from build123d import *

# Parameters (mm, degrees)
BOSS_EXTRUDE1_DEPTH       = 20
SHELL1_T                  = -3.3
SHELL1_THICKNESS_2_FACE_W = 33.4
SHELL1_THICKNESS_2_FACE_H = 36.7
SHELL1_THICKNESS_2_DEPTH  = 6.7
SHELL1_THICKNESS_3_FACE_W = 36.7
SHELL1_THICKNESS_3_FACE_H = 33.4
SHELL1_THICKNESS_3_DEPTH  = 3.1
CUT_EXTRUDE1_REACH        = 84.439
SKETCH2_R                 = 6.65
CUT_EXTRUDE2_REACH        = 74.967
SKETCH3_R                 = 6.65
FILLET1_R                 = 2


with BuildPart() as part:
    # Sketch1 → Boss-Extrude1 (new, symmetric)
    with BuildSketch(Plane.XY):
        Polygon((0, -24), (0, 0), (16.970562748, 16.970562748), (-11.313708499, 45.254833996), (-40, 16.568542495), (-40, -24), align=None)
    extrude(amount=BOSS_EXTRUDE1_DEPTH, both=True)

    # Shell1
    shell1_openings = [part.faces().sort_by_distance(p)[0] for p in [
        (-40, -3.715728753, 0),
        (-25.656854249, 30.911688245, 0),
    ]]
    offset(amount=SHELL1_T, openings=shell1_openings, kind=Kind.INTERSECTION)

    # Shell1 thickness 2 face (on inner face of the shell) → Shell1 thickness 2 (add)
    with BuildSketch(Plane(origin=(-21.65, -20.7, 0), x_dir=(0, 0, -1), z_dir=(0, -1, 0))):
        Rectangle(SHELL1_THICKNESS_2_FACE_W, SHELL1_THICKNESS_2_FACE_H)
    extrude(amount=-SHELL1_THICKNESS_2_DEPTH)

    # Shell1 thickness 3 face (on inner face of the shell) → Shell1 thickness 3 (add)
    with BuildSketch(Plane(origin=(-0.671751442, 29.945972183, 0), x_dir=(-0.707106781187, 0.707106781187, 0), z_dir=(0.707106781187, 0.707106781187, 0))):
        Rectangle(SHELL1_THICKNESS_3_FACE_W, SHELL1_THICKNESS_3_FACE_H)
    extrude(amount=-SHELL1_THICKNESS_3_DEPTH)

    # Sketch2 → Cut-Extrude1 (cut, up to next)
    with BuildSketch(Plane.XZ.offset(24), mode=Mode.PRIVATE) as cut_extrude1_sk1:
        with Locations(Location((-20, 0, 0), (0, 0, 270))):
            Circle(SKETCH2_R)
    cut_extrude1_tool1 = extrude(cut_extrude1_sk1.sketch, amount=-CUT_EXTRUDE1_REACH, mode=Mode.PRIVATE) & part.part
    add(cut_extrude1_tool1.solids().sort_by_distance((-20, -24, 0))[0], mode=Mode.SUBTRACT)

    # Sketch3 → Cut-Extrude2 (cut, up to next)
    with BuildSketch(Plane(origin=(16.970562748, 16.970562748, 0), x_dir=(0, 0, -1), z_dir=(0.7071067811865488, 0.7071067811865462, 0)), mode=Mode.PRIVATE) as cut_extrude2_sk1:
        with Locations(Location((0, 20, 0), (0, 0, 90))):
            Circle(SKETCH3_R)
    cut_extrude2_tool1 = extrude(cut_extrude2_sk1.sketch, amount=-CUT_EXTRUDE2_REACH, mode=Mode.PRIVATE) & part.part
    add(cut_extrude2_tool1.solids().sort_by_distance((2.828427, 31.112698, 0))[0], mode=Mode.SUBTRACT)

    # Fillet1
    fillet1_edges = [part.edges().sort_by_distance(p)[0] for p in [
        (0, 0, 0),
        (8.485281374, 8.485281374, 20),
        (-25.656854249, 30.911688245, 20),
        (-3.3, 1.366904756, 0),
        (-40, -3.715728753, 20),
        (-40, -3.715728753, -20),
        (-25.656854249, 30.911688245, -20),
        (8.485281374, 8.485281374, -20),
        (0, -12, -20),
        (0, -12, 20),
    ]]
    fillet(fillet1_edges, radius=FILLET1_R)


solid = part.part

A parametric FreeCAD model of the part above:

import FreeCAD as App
import Part
import Sketcher

V = App.Vector
Q = App.Units.Quantity


def edges_at(feature, points):
    """Names of the edges that pass closest to the given points."""
    edges = feature.Shape.Edges
    near = lambda p: min(range(len(edges)), key=lambda i: edges[i].distToShape(Part.Vertex(*p))[0])
    return sorted({f"Edge{near(p) + 1}" for p in points})


def faces_at(feature, points):
    """Names of the faces that lie closest to the given points."""
    faces = feature.Shape.Faces
    near = lambda p: min(range(len(faces)), key=lambda i: faces[i].distToShape(Part.Vertex(*p))[0])
    return sorted({f"Face{near(p) + 1}" for p in points})

doc = App.newDocument("Part")
body = doc.addObject("PartDesign::Body", "Body")

sketch1 = body.newObject("Sketcher::SketchObject", "Sketch")
sketch1.AttachmentSupport = (doc.getObject("XY_Plane"), [""])
sketch1.MapMode = "FlatFace"
sketch1.addGeometry(Part.LineSegment(V(0, -24, 0), V(0, 0, 0)), False)
sketch1.addGeometry(Part.LineSegment(V(0, 0, 0), V(17, 17, 0)), False)
sketch1.addGeometry(Part.LineSegment(V(17, 17, 0), V(-11, 45, 0)), False)
sketch1.addGeometry(Part.LineSegment(V(-11, 45, 0), V(-40, 17, 0)), False)
sketch1.addGeometry(Part.LineSegment(V(-40, 17, 0), V(-40, -24, 0)), False)
sketch1.addGeometry(Part.LineSegment(V(-40, -24, 0), V(0, -24, 0)), False)
sketch1.addConstraint(Sketcher.Constraint("Coincident", 0, 2, 1, 1))
sketch1.addConstraint(Sketcher.Constraint("Coincident", 1, 2, 2, 1))
sketch1.addConstraint(Sketcher.Constraint("Coincident", 2, 2, 3, 1))
sketch1.addConstraint(Sketcher.Constraint("Coincident", 3, 2, 4, 1))
sketch1.addConstraint(Sketcher.Constraint("Coincident", 4, 2, 5, 1))
sketch1.addConstraint(Sketcher.Constraint("Coincident", 5, 2, 0, 1))
sketch1.addConstraint(Sketcher.Constraint("Vertical", 0))
sketch1.addConstraint(Sketcher.Constraint("Vertical", 4))
sketch1.addConstraint(Sketcher.Constraint("Horizontal", 5))
sketch1.addConstraint(Sketcher.Constraint("Coincident", 0, 2, -1, 1))
sketch1.addConstraint(Sketcher.Constraint("Perpendicular", 1, 2))
sketch1.addConstraint(Sketcher.Constraint("Perpendicular", 2, 3))
sketch1.addConstraint(Sketcher.Constraint("DistanceX", 5, 1, 5, 2, Q("40 mm")))
sketch1.addConstraint(Sketcher.Constraint("DistanceY", 0, 1, 0, 2, Q("24 mm")))
sketch1.addConstraint(Sketcher.Constraint("Angle", 1, Q("45 deg")))
sketch1.addConstraint(Sketcher.Constraint("Distance", 1, Q("24 mm")))
sketch1.addConstraint(Sketcher.Constraint("Distance", 2, Q("40 mm")))
pad1 = body.newObject("PartDesign::Pad", "Pad")
pad1.Profile = sketch1
pad1.Length = 40
pad1.Midplane = True
doc.recompute()

thickness = body.newObject("PartDesign::Thickness", "Thickness")
thickness.Base = (pad1, faces_at(pad1, [(-40, -3.716, 0), (-25.657, 30.912, 0)]))
thickness.Value = 3.3
thickness.Reversed = True
thickness.Join = "Intersection"

sketch2 = body.newObject("Sketcher::SketchObject", "Sketch001")
sketch2.AttachmentSupport = (doc.getObject("XZ_Plane"), [""])
sketch2.MapMode = "FlatFace"
sketch2.AttachmentOffset = App.Placement(V(0, 0, 20.7), App.Rotation())
sketch2.addGeometry(Part.LineSegment(V(-3, 17, 0), V(-40, 17, 0)), False)
sketch2.addGeometry(Part.LineSegment(V(-40, 17, 0), V(-40, -17, 0)), False)
sketch2.addGeometry(Part.LineSegment(V(-40, -17, 0), V(-3, -17, 0)), False)
sketch2.addGeometry(Part.LineSegment(V(-3, -17, 0), V(-3, 17, 0)), False)
sketch2.addConstraint(Sketcher.Constraint("Coincident", 0, 2, 1, 1))
sketch2.addConstraint(Sketcher.Constraint("Coincident", 1, 2, 2, 1))
sketch2.addConstraint(Sketcher.Constraint("Coincident", 2, 2, 3, 1))
sketch2.addConstraint(Sketcher.Constraint("Coincident", 3, 2, 0, 1))
sketch2.addConstraint(Sketcher.Constraint("Horizontal", 0))
sketch2.addConstraint(Sketcher.Constraint("Vertical", 1))
sketch2.addConstraint(Sketcher.Constraint("Horizontal", 2))
sketch2.addConstraint(Sketcher.Constraint("Vertical", 3))
sketch2.addConstraint(Sketcher.Constraint("DistanceX", 0, 2, 0, 1, Q("36.7 mm")))
sketch2.addConstraint(Sketcher.Constraint("DistanceY", 1, 2, 1, 1, Q("33.4 mm")))
sketch2.addConstraint(Sketcher.Constraint("DistanceX", 0, 2, -1, 1, Q("40 mm")))
sketch2.addConstraint(Sketcher.Constraint("DistanceY", -1, 1, 0, 2, Q("16.7 mm")))
pad2 = body.newObject("PartDesign::Pad", "Pad001")
pad2.Profile = sketch2
pad2.Length = 6.7
pad2.Reversed = True

sketch3 = body.newObject("Sketcher::SketchObject", "Sketch002")
sketch3.Placement = App.Placement(V(-0.671751, 29.945972, 0), App.Rotation(V(-0.707106781, 0.707106781, 0), V(0, 0, 0.999999999), V(0.707106781, 0.707106781, 0), "ZXY"))
sketch3.addGeometry(Part.LineSegment(V(-18, 17, 0), V(-18, -17, 0)), False)
sketch3.addGeometry(Part.LineSegment(V(-18, -17, 0), V(18, -17, 0)), False)
sketch3.addGeometry(Part.LineSegment(V(18, -17, 0), V(18, 17, 0)), False)
sketch3.addGeometry(Part.LineSegment(V(18, 17, 0), V(-18, 17, 0)), False)
sketch3.addConstraint(Sketcher.Constraint("Coincident", 0, 2, 1, 1))
sketch3.addConstraint(Sketcher.Constraint("Coincident", 1, 2, 2, 1))
sketch3.addConstraint(Sketcher.Constraint("Coincident", 2, 2, 3, 1))
sketch3.addConstraint(Sketcher.Constraint("Coincident", 3, 2, 0, 1))
sketch3.addConstraint(Sketcher.Constraint("Vertical", 0))
sketch3.addConstraint(Sketcher.Constraint("Horizontal", 1))
sketch3.addConstraint(Sketcher.Constraint("Vertical", 2))
sketch3.addConstraint(Sketcher.Constraint("Horizontal", 3))
sketch3.addConstraint(Sketcher.Constraint("Symmetric", 0, 2, 2, 2, -1, 1))
sketch3.addConstraint(Sketcher.Constraint("DistanceX", 1, 1, 1, 2, Q("36.7 mm")))
sketch3.addConstraint(Sketcher.Constraint("DistanceY", 0, 2, 0, 1, Q("33.4 mm")))
pad3 = body.newObject("PartDesign::Pad", "Pad002")
pad3.Profile = sketch3
pad3.Length = 3.1
pad3.Reversed = True

sketch4 = body.newObject("Sketcher::SketchObject", "Sketch003")
sketch4.AttachmentSupport = (doc.getObject("XZ_Plane"), [""])
sketch4.MapMode = "FlatFace"
sketch4.AttachmentOffset = App.Placement(V(0, 0, 24), App.Rotation())
sketch4.addGeometry(Part.Circle(V(-20, 0, 0), V(0, 0, 1), 7), False)
sketch4.addConstraint(Sketcher.Constraint("PointOnObject", 0, 3, -1))
sketch4.addConstraint(Sketcher.Constraint("Diameter", 0, Q("13.3 mm")))
sketch4.addConstraint(Sketcher.Constraint("DistanceX", 0, 3, -1, 1, Q("20 mm")))
pocket1 = body.newObject("PartDesign::Pocket", "Pocket")
pocket1.Profile = sketch4
pocket1.Type = "UpToFirst"

sketch5 = body.newObject("Sketcher::SketchObject", "Sketch004")
sketch5.Placement = App.Placement(V(16.970563, 16.970563, 0), App.Rotation(V(0, 0, -1), V(-0.707106781, 0.707106781, 0), V(0.707106781, 0.707106781, 0), "ZXY"))
sketch5.addGeometry(Part.Circle(V(0, 20, 0), V(0, 0, 1), 7), False)
sketch5.addConstraint(Sketcher.Constraint("PointOnObject", 0, 3, -2))
sketch5.addConstraint(Sketcher.Constraint("Diameter", 0, Q("13.3 mm")))
sketch5.addConstraint(Sketcher.Constraint("DistanceY", -1, 1, 0, 3, Q("20 mm")))
pocket2 = body.newObject("PartDesign::Pocket", "Pocket001")
pocket2.Profile = sketch5
pocket2.Type = "UpToFirst"
doc.recompute()

fillet = body.newObject("PartDesign::Fillet", "Fillet")
fillet.Base = (pocket2, edges_at(pocket2, [
    (0, 0, 0),
    (8.485, 8.485, 20),
    (-25.657, 30.912, 20),
    (-3.3, 1.367, 0),
    (-40, -3.716, 20),
    (-40, -3.716, -20),
    (-25.657, 30.912, -20),
    (8.485, 8.485, -20),
    (0, -12, -20),
    (0, -12, 20),
]))
fillet.Radius = 2

doc.recompute()
